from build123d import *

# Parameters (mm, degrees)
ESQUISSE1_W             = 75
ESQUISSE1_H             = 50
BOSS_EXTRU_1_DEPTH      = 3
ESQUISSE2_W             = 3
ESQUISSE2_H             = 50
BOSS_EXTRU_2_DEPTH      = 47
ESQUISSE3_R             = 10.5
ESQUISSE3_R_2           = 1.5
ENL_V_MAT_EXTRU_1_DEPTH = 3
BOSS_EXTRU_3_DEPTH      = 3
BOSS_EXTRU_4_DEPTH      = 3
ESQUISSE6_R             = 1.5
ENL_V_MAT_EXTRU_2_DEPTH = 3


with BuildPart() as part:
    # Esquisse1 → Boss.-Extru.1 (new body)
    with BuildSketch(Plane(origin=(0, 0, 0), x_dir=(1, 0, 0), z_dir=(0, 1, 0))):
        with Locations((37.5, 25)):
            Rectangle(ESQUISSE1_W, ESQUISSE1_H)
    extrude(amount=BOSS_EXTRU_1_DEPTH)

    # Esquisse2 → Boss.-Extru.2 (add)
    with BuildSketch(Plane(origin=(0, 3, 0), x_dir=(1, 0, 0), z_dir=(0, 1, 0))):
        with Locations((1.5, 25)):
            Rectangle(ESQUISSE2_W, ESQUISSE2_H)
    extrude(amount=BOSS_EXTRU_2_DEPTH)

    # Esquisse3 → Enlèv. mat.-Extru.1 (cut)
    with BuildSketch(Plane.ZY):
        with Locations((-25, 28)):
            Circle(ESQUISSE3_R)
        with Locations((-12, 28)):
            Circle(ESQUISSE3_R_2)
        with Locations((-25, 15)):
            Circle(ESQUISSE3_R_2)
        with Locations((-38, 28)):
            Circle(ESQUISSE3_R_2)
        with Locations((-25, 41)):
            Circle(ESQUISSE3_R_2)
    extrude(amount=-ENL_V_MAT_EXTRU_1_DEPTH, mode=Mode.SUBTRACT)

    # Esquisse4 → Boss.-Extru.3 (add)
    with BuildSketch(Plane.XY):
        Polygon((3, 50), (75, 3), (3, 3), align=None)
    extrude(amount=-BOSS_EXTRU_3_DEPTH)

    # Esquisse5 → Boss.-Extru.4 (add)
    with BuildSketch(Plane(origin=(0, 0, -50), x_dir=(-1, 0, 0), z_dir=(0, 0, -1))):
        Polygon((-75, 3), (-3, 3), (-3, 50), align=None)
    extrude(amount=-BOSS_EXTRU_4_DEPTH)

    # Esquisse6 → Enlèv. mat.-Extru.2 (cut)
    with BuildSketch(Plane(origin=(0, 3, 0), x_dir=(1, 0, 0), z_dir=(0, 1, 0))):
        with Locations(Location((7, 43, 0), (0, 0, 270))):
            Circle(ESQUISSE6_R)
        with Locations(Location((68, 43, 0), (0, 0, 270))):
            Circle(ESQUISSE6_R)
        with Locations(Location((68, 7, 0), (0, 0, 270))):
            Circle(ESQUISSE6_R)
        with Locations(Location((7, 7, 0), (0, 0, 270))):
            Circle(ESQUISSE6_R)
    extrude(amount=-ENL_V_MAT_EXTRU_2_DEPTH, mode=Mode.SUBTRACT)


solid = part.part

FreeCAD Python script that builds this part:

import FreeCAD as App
import Part
import Sketcher

V = App.Vector
Q = App.Units.Quantity

doc = App.newDocument("Part")
body = doc.addObject("PartDesign::Body", "Body")

# Sketch on XZ plane
sketch1 = body.newObject("Sketcher::SketchObject", "Sketch")
sketch1.AttachmentSupport = (doc.getObject("XZ_Plane"), [""])
sketch1.MapMode = "FlatFace"
sketch1.addGeometry([
    Part.LineSegment(V(0, -50, 0), V(0, 0, 0)),
    Part.LineSegment(V(0, 0, 0), V(75, 0, 0)),
    Part.LineSegment(V(75, 0, 0), V(75, -50, 0)),
    Part.LineSegment(V(75, -50, 0), V(0, -50, 0)),
], False)
sketch1.addConstraint([
    Sketcher.Constraint("Coincident", 0, 2, 1, 1),
    Sketcher.Constraint("Coincident", 1, 2, 2, 1),
    Sketcher.Constraint("Coincident", 2, 2, 3, 1),
    Sketcher.Constraint("Coincident", 3, 2, 0, 1),
    Sketcher.Constraint("Vertical", 0),
    Sketcher.Constraint("Horizontal", 1),
    Sketcher.Constraint("Vertical", 2),
    Sketcher.Constraint("Horizontal", 3),
    Sketcher.Constraint("Coincident", 0, 2, -1, 1),
    Sketcher.Constraint("DistanceX", 1, 1, 1, 2, Q("75 mm")),
    Sketcher.Constraint("DistanceY", 0, 1, 0, 2, Q("50 mm")),
])
pad1 = body.newObject("PartDesign::Pad", "Pad")
pad1.Profile = sketch1
pad1.Length = 3
pad1.Reversed = True

# Sketch on XZ plane
sketch2 = body.newObject("Sketcher::SketchObject", "Sketch001")
sketch2.AttachmentSupport = (doc.getObject("XZ_Plane"), [""])
sketch2.MapMode = "FlatFace"
sketch2.AttachmentOffset = App.Placement(V(0, 0, -3), App.Rotation())
sketch2.addGeometry([
    Part.LineSegment(V(0, -50, 0), V(0, 0, 0)),
    Part.LineSegment(V(0, 0, 0), V(3, 0, 0)),
    Part.LineSegment(V(3, 0, 0), V(3, -50, 0)),
    Part.LineSegment(V(3, -50, 0), V(0, -50, 0)),
], False)
sketch2.addConstraint([
    Sketcher.Constraint("Coincident", 0, 2, 1, 1),
    Sketcher.Constraint("Coincident", 1, 2, 2, 1),
    Sketcher.Constraint("Coincident", 2, 2, 3, 1),
    Sketcher.Constraint("Coincident", 3, 2, 0, 1),
    Sketcher.Constraint("Vertical", 0),
    Sketcher.Constraint("Horizontal", 1),
    Sketcher.Constraint("Vertical", 2),
    Sketcher.Constraint("Horizontal", 3),
    Sketcher.Constraint("Coincident", 0, 2, -1, 1),
    Sketcher.Constraint("DistanceX", 1, 1, 1, 2, Q("3 mm")),
    Sketcher.Constraint("DistanceY", 0, 1, 0, 2, Q("50 mm")),
])
pad2 = body.newObject("PartDesign::Pad", "Pad001")
pad2.Profile = sketch2
pad2.Length = 47
pad2.Reversed = True

# Sketch on YZ plane
sketch3 = body.newObject("Sketcher::SketchObject", "Sketch002")
sketch3.AttachmentSupport = (doc.getObject("YZ_Plane"), [""])
sketch3.MapMode = "FlatFace"
sketch3.addGeometry([
    Part.Circle(V(28, -25, 0), V(0, 0, 1), 10.5),  # 0
    Part.Circle(V(28, -12, 0), V(0, 0, 1), 1.5),  # 1
    Part.Circle(V(15, -25, 0), V(0, 0, 1), 1.5),  # 2
    Part.Circle(V(28, -38, 0), V(0, 0, 1), 1.5),  # 3
    Part.Circle(V(41, -25, 0), V(0, 0, 1), 1.5),  # 4
], False)
sketch3.addConstraint([
    Sketcher.Constraint("Equal", 1, 2),
    Sketcher.Constraint("Equal", 2, 3),
    Sketcher.Constraint("Equal", 3, 4),
    Sketcher.Constraint("Horizontal", 0, 3, 2, 3),
    Sketcher.Constraint("Horizontal", 2, 3, 4, 3),
    Sketcher.Constraint("Vertical", 0, 3, 1, 3),
    Sketcher.Constraint("Vertical", 1, 3, 3, 3),
    Sketcher.Constraint("Diameter", 0, Q("21 mm")),
    Sketcher.Constraint("Diameter", 1, Q("3 mm")),
    Sketcher.Constraint("DistanceX", -1, 1, 0, 3, Q("28 mm")),
    Sketcher.Constraint("DistanceY", 0, 3, -1, 1, Q("25 mm")),
    Sketcher.Constraint("DistanceY", 1, 3, -1, 1, Q("12 mm")),
    Sketcher.Constraint("DistanceX", -1, 1, 2, 3, Q("15 mm")),
    Sketcher.Constraint("DistanceY", 3, 3, -1, 1, Q("38 mm")),
    Sketcher.Constraint("DistanceX", -1, 1, 4, 3, Q("41 mm")),
])
pocket1 = body.newObject("PartDesign::Pocket", "Pocket")
pocket1.Profile = sketch3
pocket1.Length = 3
pocket1.Reversed = True

# Sketch on XY plane
sketch4 = body.newObject("Sketcher::SketchObject", "Sketch003")
sketch4.AttachmentSupport = (doc.getObject("XY_Plane"), [""])
sketch4.MapMode = "FlatFace"
sketch4.addGeometry([
    Part.LineSegment(V(75, 3, 0), V(3, 50, 0)),
    Part.LineSegment(V(3, 50, 0), V(3, 3, 0)),
    Part.LineSegment(V(3, 3, 0), V(75, 3, 0)),
], False)
sketch4.addConstraint([
    Sketcher.Constraint("Coincident", 0, 2, 1, 1),
    Sketcher.Constraint("Coincident", 1, 2, 2, 1),
    Sketcher.Constraint("Coincident", 2, 2, 0, 1),
    Sketcher.Constraint("Vertical", 1),
    Sketcher.Constraint("Horizontal", 2),
    Sketcher.Constraint("DistanceX", 2, 1, 2, 2, Q("72 mm")),
    Sketcher.Constraint("DistanceY", 1, 2, 1, 1, Q("47 mm")),
    Sketcher.Constraint("DistanceX", -1, 1, 0, 2, Q("3 mm")),
    Sketcher.Constraint("DistanceY", -1, 1, 0, 2, Q("50 mm")),
])
pad3 = body.newObject("PartDesign::Pad", "Pad002")
pad3.Profile = sketch4
pad3.Length = 3
pad3.Reversed = True

# Sketch on XY plane
sketch5 = body.newObject("Sketcher::SketchObject", "Sketch004")
sketch5.AttachmentSupport = (doc.getObject("XY_Plane"), [""])
sketch5.MapMode = "FlatFace"
sketch5.AttachmentOffset = App.Placement(V(0, 0, -50), App.Rotation())
sketch5.addGeometry([
    Part.LineSegment(V(75, 3, 0), V(3, 3, 0)),
    Part.LineSegment(V(3, 3, 0), V(3, 50, 0)),
    Part.LineSegment(V(3, 50, 0), V(75, 3, 0)),
], False)
sketch5.addConstraint([
    Sketcher.Constraint("Coincident", 0, 2, 1, 1),
    Sketcher.Constraint("Coincident", 1, 2, 2, 1),
    Sketcher.Constraint("Coincident", 2, 2, 0, 1),
    Sketcher.Constraint("Horizontal", 0),
    Sketcher.Constraint("Vertical", 1),
    Sketcher.Constraint("DistanceX", 0, 2, 0, 1, Q("72 mm")),
    Sketcher.Constraint("DistanceY", 1, 1, 1, 2, Q("47 mm")),
    Sketcher.Constraint("DistanceX", -1, 1, 0, 2, Q("3 mm")),
    Sketcher.Constraint("DistanceY", -1, 1, 0, 2, Q("3 mm")),
])
pad4 = body.newObject("PartDesign::Pad", "Pad003")
pad4.Profile = sketch5
pad4.Length = 3

# Sketch on XZ plane
sketch6 = body.newObject("Sketcher::SketchObject", "Sketch005")
sketch6.AttachmentSupport = (doc.getObject("XZ_Plane"), [""])
sketch6.MapMode = "FlatFace"
sketch6.AttachmentOffset = App.Placement(V(0, 0, -3), App.Rotation())
sketch6.addGeometry([
    Part.Circle(V(7, -43, 0), V(0, 0, 1), 1.5),
    Part.Circle(V(68, -43, 0), V(0, 0, 1), 1.5),
    Part.Circle(V(68, -7, 0), V(0, 0, 1), 1.5),
    Part.Circle(V(7, -7, 0), V(0, 0, 1), 1.5),
], False)
sketch6.addConstraint([
    Sketcher.Constraint("Equal", 0, 1),
    Sketcher.Constraint("Equal", 1, 2),
    Sketcher.Constraint("Equal", 2, 3),
    Sketcher.Constraint("Horizontal", 0, 3, 1, 3),
    Sketcher.Constraint("Horizontal", 2, 3, 3, 3),
    Sketcher.Constraint("Vertical", 1, 3, 2, 3),
    Sketcher.Constraint("Vertical", 0, 3, 3, 3),
    Sketcher.Constraint("Diameter", 0, Q("3 mm")),
    Sketcher.Constraint("DistanceX", -1, 1, 0, 3, Q("7 mm")),
    Sketcher.Constraint("DistanceY", 0, 3, -1, 1, Q("43 mm")),
    Sketcher.Constraint("DistanceX", -1, 1, 1, 3, Q("68 mm")),
    Sketcher.Constraint("DistanceY", 2, 3, -1, 1, Q("7 mm")),
])
pocket2 = body.newObject("PartDesign::Pocket", "Pocket001")
pocket2.Profile = sketch6
pocket2.Length = 3
pocket2.Reversed = True

doc.recompute()
